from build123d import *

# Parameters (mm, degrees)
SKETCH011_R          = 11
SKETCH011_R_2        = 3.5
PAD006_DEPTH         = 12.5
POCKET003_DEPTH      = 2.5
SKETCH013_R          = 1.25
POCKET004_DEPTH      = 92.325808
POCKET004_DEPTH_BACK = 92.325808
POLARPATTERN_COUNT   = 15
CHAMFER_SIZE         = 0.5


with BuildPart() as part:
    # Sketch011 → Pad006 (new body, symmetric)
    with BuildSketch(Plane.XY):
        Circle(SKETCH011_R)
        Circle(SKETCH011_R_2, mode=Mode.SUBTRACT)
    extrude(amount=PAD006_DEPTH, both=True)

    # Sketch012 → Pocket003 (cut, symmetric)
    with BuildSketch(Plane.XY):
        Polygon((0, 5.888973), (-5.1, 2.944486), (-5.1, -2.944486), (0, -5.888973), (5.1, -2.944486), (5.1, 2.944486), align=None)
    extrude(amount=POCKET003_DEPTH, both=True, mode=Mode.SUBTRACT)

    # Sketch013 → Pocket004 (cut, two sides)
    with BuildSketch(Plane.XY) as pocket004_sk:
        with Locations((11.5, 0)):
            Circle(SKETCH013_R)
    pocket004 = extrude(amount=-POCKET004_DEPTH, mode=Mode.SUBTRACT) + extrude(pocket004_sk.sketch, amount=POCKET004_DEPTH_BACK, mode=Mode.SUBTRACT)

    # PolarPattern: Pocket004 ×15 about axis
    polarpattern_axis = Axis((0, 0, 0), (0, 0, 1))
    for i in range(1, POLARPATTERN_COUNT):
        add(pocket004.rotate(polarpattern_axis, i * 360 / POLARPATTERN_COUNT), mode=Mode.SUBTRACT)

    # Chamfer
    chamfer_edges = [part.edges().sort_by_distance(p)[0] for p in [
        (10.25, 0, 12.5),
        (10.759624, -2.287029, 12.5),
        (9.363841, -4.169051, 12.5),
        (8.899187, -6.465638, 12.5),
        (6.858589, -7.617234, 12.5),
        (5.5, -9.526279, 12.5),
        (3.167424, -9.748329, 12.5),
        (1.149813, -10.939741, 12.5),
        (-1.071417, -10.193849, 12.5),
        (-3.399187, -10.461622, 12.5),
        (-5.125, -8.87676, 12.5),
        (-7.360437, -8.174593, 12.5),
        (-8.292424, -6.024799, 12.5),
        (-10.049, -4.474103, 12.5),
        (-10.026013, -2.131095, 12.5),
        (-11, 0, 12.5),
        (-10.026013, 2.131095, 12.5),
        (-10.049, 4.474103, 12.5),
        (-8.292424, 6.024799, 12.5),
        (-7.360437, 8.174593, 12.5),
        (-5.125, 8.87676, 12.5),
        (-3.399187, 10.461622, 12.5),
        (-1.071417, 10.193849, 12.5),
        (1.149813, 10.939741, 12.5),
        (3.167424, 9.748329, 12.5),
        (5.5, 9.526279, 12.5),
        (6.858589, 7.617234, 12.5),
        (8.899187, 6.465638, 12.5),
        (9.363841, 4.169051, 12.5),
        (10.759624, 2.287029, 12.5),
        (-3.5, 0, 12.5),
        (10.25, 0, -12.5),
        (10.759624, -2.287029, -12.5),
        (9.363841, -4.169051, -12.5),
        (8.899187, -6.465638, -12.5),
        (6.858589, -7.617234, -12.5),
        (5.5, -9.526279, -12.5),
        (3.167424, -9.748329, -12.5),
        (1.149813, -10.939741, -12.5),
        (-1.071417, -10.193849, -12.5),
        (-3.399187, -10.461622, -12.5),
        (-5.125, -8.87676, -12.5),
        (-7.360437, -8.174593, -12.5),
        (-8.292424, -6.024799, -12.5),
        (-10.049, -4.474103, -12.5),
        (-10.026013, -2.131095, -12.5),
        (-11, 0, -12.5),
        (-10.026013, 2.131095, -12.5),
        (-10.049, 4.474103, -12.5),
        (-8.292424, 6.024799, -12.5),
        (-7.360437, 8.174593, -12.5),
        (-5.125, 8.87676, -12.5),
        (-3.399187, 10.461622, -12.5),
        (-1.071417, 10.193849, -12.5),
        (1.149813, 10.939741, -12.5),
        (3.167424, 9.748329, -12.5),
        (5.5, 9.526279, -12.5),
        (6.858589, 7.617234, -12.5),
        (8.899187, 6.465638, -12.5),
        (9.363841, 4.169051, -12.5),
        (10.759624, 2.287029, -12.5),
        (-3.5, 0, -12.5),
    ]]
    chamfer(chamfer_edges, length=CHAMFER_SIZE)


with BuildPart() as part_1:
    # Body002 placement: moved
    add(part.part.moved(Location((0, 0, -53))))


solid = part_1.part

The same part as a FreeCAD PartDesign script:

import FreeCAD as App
import Part
import Sketcher

V = App.Vector
Q = App.Units.Quantity


def edges_at(feature, points):
    """Names of the edges that pass closest to the given points."""
    edges = feature.Shape.Edges
    near = lambda p: min(range(len(edges)), key=lambda i: edges[i].distToShape(Part.Vertex(*p))[0])
    return sorted({f"Edge{near(p) + 1}" for p in points})

doc = App.newDocument("Part")
body = doc.addObject("PartDesign::Body", "Body")

# Sketch on XY plane
sketch1 = doc.addObject("Sketcher::SketchObject", "Sketch")
body.addObject(sketch1)
sketch1.AttachmentSupport = (doc.XY_Plane, [""])
sketch1.MapMode = "FlatFace"
sketch1.addGeometry([
    Part.Circle(V(0, 0, 0), V(0, 0, 1), 11),
    Part.Circle(V(0, 0, 0), V(0, 0, 1), 3.5),
], False)
sketch1.addConstraint([
    Sketcher.Constraint("Coincident", 0, 3, -1, 1),
    Sketcher.Constraint("Coincident", 1, 3, -1, 1),
    Sketcher.Constraint("Diameter", 0, Q("22 mm")),
    Sketcher.Constraint("Diameter", 1, Q("7 mm")),
])
pad1 = doc.addObject("PartDesign::Pad", "Pad")
body.addObject(pad1)
pad1.Profile = sketch1
pad1.Length = 25
pad1.Midplane = True

# Sketch on XY plane
sketch2 = doc.addObject("Sketcher::SketchObject", "Sketch001")
body.addObject(sketch2)
sketch2.AttachmentSupport = (doc.XY_Plane, [""])
sketch2.MapMode = "FlatFace"
sketch2.addGeometry([
    Part.LineSegment(V(0, 6, 0), V(-5, 3, 0)),  # 0
    Part.LineSegment(V(-5, 3, 0), V(-5, -3, 0)),  # 1
    Part.LineSegment(V(-5, -3, 0), V(0, -6, 0)),  # 2
    Part.LineSegment(V(0, -6, 0), V(5, -3, 0)),  # 3
    Part.LineSegment(V(5, -3, 0), V(5, 3, 0)),  # 4
    Part.LineSegment(V(5, 3, 0), V(0, 6, 0)),  # 5
], False)
sketch2.addConstraint([
    Sketcher.Constraint("Coincident", 0, 2, 1, 1),
    Sketcher.Constraint("Coincident", 1, 2, 2, 1),
    Sketcher.Constraint("Coincident", 2, 2, 3, 1),
    Sketcher.Constraint("Coincident", 3, 2, 4, 1),
    Sketcher.Constraint("Coincident", 4, 2, 5, 1),
    Sketcher.Constraint("Coincident", 5, 2, 0, 1),
    Sketcher.Constraint("Vertical", 1),
    Sketcher.Constraint("Vertical", 4),
    Sketcher.Constraint("Symmetric", 0, 2, 3, 2, -1, 1),
    Sketcher.Constraint("Symmetric", 2, 2, 5, 2, -1, 1),
    Sketcher.Constraint("PointOnObject", 2, 2, -2),
    Sketcher.Constraint("Parallel", 2, 5),
    Sketcher.Constraint("Horizontal", 1, 2, 3, 2),
    Sketcher.Constraint("Angle", 0, Q("-149.999995 deg")),
    Sketcher.Constraint("DistanceX", 0, 2, -1, 1, Q("5.1 mm")),
    Sketcher.Constraint("DistanceY", 1, 2, 1, 1, Q("5.888972 mm")),
])
pocket1 = doc.addObject("PartDesign::Pocket", "Pocket")
body.addObject(pocket1)
pocket1.Profile = sketch2
pocket1.Length = 5
pocket1.Midplane = True

# Sketch on XY plane
sketch3 = doc.addObject("Sketcher::SketchObject", "Sketch002")
body.addObject(sketch3)
sketch3.AttachmentSupport = (doc.XY_Plane, [""])
sketch3.MapMode = "FlatFace"
sketch3.addGeometry(Part.Circle(V(11.5, 0, 0), V(0, 0, 1), 1.2), False)
sketch3.addConstraint([
    Sketcher.Constraint("PointOnObject", 0, 3, -1),
    Sketcher.Constraint("Diameter", 0, Q("2.5 mm")),
    Sketcher.Constraint("DistanceX", -1, 1, 0, 3, Q("11.5 mm")),
])
pocket2 = doc.addObject("PartDesign::Pocket", "Pocket001")
body.addObject(pocket2)
pocket2.Profile = sketch3
pocket2.Type = "ThroughAll"
pocket2.Midplane = True
doc.recompute()

polarpattern = doc.addObject("PartDesign::PolarPattern", "PolarPattern")
body.addObject(polarpattern)
polarpattern.Originals = [pocket2]
polarpattern.Axis = (doc.Z_Axis, [""])
polarpattern.Angle = 360
polarpattern.Occurrences = 15
body.Tip = polarpattern
doc.recompute()

chamfer = doc.addObject("PartDesign::Chamfer", "Chamfer")
body.addObject(chamfer)
chamfer.Base = (polarpattern, edges_at(polarpattern, [
    (10.25, 0, 12.5),
    (10.76, -2.287, 12.5),
    (9.364, -4.169, 12.5),
    (8.899, -6.466, 12.5),
    (6.859, -7.617, 12.5),
    (5.5, -9.526, 12.5),
    (3.167, -9.748, 12.5),
    (1.15, -10.94, 12.5),
    (-1.071, -10.194, 12.5),
    (-3.399, -10.462, 12.5),
    (-5.125, -8.877, 12.5),
    (-7.36, -8.175, 12.5),
    (-8.292, -6.025, 12.5),
    (-10.049, -4.474, 12.5),
    (-10.026, -2.131, 12.5),
    (-11, 0, 12.5),
    (-10.026, 2.131, 12.5),
    (-10.049, 4.474, 12.5),
    (-8.292, 6.025, 12.5),
    (-7.36, 8.175, 12.5),
    (-5.125, 8.877, 12.5),
    (-3.399, 10.462, 12.5),
    (-1.071, 10.194, 12.5),
    (1.15, 10.94, 12.5),
    (3.167, 9.748, 12.5),
    (5.5, 9.526, 12.5),
    (6.859, 7.617, 12.5),
    (8.899, 6.466, 12.5),
    (9.364, 4.169, 12.5),
    (10.76, 2.287, 12.5),
    (-3.5, 0, 12.5),
    (10.25, 0, -12.5),
    (10.76, -2.287, -12.5),
    (9.364, -4.169, -12.5),
    (8.899, -6.466, -12.5),
    (6.859, -7.617, -12.5),
    (5.5, -9.526, -12.5),
    (3.167, -9.748, -12.5),
    (1.15, -10.94, -12.5),
    (-1.071, -10.194, -12.5),
    (-3.399, -10.462, -12.5),
    (-5.125, -8.877, -12.5),
    (-7.36, -8.175, -12.5),
    (-8.292, -6.025, -12.5),
    (-10.049, -4.474, -12.5),
    (-10.026, -2.131, -12.5),
    (-11, 0, -12.5),
    (-10.026, 2.131, -12.5),
    (-10.049, 4.474, -12.5),
    (-8.292, 6.025, -12.5),
    (-7.36, 8.175, -12.5),
    (-5.125, 8.877, -12.5),
    (-3.399, 10.462, -12.5),
    (-1.071, 10.194, -12.5),
    (1.15, 10.94, -12.5),
    (3.167, 9.748, -12.5),
    (5.5, 9.526, -12.5),
    (6.859, 7.617, -12.5),
    (8.899, 6.466, -12.5),
    (9.364, 4.169, -12.5),
    (10.76, 2.287, -12.5),
    (-3.5, 0, -12.5),
]))
chamfer.Size = 0.5
body2 = doc.addObject("PartDesign::Body", "Body001")
doc.recompute()

body.Placement = App.Placement(V(0, 0, -53), App.Rotation(V(0, 0, 1), 0))
boolean = doc.addObject("PartDesign::Boolean", "Boolean")
body2.addObject(boolean)
boolean.Type = "Fuse"
boolean.addObjects([body])

doc.recompute()
